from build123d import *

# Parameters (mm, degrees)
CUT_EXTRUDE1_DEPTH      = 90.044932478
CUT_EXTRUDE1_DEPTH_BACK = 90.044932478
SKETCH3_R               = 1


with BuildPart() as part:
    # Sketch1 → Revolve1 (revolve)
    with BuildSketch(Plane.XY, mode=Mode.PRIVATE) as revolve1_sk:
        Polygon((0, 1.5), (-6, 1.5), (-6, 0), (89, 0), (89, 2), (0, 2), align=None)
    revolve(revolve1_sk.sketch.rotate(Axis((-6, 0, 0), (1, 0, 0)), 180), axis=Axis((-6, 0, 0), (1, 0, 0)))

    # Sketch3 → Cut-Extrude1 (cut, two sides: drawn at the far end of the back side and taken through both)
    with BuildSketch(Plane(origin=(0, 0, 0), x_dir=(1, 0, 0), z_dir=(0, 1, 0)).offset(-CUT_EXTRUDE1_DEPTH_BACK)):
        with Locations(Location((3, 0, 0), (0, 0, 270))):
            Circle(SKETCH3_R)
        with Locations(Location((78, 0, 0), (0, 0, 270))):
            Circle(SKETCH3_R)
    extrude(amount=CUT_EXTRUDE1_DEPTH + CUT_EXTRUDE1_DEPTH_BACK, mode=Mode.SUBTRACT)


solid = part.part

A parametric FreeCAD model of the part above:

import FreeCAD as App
import Part
import Sketcher
from FreeCAD import Vector

doc = App.newDocument("Part")
params = doc.addObject("Spreadsheet::Sheet", "Params")
for row, (alias, value) in enumerate([
    ("sketch1_width", "6 mm"),
    ("sketch1_width2", "95 mm"),
    ("sketch1_height", "2 mm"),
    ("sketch1_height2", "1.5 mm"),
    ("revolution_angle", "360 deg"),
    ("sketch2_diameter", "2 mm"),
], start=1):
    params.set(f"A{row}", alias)
    params.set(f"B{row}", "=" + value)
    params.setAlias(f"B{row}", alias)

body = doc.addObject("PartDesign::Body", "Body")

# Sketch on XY plane
sketch1 = body.newObject("Sketcher::SketchObject", "Sketch")
sketch1.AttachmentSupport = (doc.getObject("XY_Plane"), [""])
sketch1.MapMode = "FlatFace"
sketch1.addGeometry([
    Part.LineSegment(Vector(0, 1.5, 0), Vector(-6, 1.5, 0)),  # 0
    Part.LineSegment(Vector(-6, 1.5, 0), Vector(-6, 0, 0)),  # 1
    Part.LineSegment(Vector(-6, 0, 0), Vector(89, 0, 0)),  # 2
    Part.LineSegment(Vector(89, 0, 0), Vector(89, 2, 0)),  # 3
    Part.LineSegment(Vector(89, 2, 0), Vector(0, 2, 0)),  # 4
    Part.LineSegment(Vector(0, 2, 0), Vector(0, 1.5, 0)),  # 5
], False)
sketch1.addConstraint([
    Sketcher.Constraint("Coincident", 0, 2, 1, 1),
    Sketcher.Constraint("Coincident", 1, 2, 2, 1),
    Sketcher.Constraint("Coincident", 2, 2, 3, 1),
    Sketcher.Constraint("Coincident", 3, 2, 4, 1),
    Sketcher.Constraint("Coincident", 4, 2, 5, 1),
    Sketcher.Constraint("Coincident", 5, 2, 0, 1),
    Sketcher.Constraint("Horizontal", 0),
    Sketcher.Constraint("Vertical", 1),
    Sketcher.Constraint("Horizontal", 2),
    Sketcher.Constraint("Vertical", 3),
    Sketcher.Constraint("Horizontal", 4),
    Sketcher.Constraint("Vertical", 5),
    Sketcher.Constraint("PointOnObject", 1, 2, -1),
    Sketcher.Constraint("PointOnObject", 4, 2, -2),
    Sketcher.Constraint("DistanceX", 0, 2, 0, 1, 6.0),
    Sketcher.Constraint("DistanceX", 2, 1, 2, 2, 95.0),
    Sketcher.Constraint("DistanceY", 3, 1, 3, 2, 2.0),
    Sketcher.Constraint("DistanceY", 1, 2, 1, 1, 1.5),
])
sketch1.setExpression("Constraints[14]", "Params.sketch1_width")
sketch1.setExpression("Constraints[15]", "Params.sketch1_width2")
sketch1.setExpression("Constraints[16]", "Params.sketch1_height")
sketch1.setExpression("Constraints[17]", "Params.sketch1_height2")
revolution = body.newObject("PartDesign::Revolution", "Revolution")
revolution.Profile = sketch1
revolution.ReferenceAxis = (sketch1, ["H_Axis"])
revolution.setExpression("Angle", "Params.revolution_angle")

# Sketch on XZ plane
sketch2 = body.newObject("Sketcher::SketchObject", "Sketch001")
sketch2.AttachmentSupport = (doc.getObject("XZ_Plane"), [""])
sketch2.MapMode = "FlatFace"
sketch2.addGeometry([
    Part.Circle(Vector(3, 0, 0), Vector(0, 0, 1), 1),
    Part.Circle(Vector(78, 0, 0), Vector(0, 0, 1), 1),
], False)
sketch2.addConstraint([
    Sketcher.Constraint("Equal", 0, 1),
    Sketcher.Constraint("PointOnObject", 0, 3, -1),
    Sketcher.Constraint("PointOnObject", 1, 3, -1),
    Sketcher.Constraint("Diameter", 0, 2.0),
    Sketcher.Constraint("DistanceX", -1, 1, 0, 3, 3.0),
    Sketcher.Constraint("DistanceX", -1, 1, 1, 3, 78.0),
])
sketch2.setExpression("Constraints[3]", "Params.sketch2_diameter")
pocket1 = body.newObject("PartDesign::Pocket", "Pocket")
pocket1.Profile = sketch2
pocket1.Type = "ThroughAll"
pocket1.Midplane = True

doc.recompute()
